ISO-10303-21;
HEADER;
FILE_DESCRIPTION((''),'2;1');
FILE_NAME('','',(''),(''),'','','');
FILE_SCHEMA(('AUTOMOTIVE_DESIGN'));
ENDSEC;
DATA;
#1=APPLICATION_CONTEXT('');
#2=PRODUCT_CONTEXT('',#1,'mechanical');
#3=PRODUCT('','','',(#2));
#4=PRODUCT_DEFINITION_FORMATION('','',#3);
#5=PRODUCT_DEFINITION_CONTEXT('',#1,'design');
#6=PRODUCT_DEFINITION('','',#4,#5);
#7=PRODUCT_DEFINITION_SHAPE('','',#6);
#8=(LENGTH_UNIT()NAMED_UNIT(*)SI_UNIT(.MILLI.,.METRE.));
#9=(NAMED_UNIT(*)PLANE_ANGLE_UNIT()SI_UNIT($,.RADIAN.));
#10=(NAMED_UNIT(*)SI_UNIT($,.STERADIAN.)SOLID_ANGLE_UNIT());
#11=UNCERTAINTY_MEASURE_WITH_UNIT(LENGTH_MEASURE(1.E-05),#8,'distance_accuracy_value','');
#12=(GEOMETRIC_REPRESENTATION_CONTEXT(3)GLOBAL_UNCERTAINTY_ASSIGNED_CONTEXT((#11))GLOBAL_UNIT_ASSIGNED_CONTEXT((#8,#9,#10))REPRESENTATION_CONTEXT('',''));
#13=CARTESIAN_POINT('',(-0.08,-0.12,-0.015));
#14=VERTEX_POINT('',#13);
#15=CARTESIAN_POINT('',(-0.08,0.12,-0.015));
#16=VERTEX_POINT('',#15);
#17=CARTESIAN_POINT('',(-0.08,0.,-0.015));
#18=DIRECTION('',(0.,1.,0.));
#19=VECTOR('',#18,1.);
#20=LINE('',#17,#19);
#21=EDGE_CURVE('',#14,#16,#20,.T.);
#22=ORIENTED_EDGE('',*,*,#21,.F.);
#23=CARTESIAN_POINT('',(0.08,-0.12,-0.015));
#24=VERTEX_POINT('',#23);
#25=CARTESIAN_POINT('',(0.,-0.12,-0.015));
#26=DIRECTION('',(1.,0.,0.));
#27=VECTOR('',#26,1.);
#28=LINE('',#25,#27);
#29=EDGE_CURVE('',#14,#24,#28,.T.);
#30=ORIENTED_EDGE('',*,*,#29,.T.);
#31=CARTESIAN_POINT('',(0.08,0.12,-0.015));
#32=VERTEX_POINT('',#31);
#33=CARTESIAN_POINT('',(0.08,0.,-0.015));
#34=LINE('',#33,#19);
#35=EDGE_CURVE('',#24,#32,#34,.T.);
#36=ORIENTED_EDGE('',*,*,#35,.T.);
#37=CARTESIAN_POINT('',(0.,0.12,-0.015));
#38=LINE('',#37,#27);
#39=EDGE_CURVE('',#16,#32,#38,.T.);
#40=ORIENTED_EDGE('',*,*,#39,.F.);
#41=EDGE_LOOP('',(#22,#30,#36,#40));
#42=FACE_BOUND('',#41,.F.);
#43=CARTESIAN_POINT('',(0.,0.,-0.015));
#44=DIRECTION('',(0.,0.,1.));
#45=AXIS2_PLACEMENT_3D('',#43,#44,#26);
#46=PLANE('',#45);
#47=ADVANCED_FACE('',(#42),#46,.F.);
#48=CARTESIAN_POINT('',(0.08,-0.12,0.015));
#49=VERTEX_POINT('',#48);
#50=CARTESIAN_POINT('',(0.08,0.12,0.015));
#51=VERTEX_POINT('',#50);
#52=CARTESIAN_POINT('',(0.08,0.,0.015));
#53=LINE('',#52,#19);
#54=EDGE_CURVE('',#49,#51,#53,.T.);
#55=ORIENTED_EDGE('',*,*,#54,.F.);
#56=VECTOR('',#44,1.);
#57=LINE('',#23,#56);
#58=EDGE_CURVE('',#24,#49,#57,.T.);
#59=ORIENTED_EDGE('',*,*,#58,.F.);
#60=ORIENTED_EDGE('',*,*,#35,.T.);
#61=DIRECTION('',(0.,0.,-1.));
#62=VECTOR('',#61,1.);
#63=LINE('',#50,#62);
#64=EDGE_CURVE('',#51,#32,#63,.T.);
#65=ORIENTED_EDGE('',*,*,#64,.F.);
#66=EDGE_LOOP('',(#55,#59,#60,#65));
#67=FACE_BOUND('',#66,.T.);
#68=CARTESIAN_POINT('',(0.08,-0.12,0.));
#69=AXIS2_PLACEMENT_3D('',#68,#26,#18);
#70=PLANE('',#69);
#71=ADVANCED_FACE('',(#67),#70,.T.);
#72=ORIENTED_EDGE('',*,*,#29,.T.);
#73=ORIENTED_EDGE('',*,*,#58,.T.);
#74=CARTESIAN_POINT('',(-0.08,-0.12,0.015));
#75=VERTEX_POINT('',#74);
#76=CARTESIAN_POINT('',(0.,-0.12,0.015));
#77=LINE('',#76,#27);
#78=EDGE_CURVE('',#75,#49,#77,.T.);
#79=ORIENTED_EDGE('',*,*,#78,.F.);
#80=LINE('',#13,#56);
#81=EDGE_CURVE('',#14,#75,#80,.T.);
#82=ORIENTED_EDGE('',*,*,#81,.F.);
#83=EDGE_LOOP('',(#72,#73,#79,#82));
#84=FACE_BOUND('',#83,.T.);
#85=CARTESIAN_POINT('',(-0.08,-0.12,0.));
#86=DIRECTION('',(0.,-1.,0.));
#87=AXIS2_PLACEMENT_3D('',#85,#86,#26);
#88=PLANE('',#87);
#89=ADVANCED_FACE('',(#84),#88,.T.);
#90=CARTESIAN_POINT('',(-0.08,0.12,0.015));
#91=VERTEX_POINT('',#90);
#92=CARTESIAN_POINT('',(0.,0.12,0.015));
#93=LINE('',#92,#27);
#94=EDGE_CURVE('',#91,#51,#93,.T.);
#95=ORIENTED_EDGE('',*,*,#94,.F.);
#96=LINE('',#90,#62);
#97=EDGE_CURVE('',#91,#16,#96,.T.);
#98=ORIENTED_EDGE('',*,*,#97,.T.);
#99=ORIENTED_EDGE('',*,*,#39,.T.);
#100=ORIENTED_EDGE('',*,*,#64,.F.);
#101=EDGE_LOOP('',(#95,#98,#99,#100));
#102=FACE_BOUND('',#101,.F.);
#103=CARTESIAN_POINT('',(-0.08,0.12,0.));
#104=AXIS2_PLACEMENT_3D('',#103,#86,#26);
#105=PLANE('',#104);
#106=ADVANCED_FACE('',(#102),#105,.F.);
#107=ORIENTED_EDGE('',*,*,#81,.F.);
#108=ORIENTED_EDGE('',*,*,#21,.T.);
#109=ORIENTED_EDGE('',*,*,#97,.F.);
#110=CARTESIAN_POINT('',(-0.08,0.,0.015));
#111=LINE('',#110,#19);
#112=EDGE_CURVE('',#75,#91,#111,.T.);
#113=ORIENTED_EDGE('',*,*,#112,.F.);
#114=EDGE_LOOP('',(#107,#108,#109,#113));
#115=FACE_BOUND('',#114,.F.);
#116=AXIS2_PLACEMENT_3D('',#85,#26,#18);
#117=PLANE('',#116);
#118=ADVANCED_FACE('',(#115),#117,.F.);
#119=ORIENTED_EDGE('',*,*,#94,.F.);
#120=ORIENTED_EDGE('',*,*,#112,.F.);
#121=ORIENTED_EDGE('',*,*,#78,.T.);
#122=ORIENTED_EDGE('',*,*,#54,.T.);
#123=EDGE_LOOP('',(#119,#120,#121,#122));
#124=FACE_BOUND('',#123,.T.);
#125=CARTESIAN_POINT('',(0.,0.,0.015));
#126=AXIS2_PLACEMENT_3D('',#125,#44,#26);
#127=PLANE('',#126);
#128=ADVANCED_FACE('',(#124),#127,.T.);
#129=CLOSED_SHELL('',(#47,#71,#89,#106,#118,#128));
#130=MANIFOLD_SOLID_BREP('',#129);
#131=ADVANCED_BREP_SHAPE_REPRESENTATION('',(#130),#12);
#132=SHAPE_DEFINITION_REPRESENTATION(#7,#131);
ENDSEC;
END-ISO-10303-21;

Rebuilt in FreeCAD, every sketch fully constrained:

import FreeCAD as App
import Part
import Sketcher

V = App.Vector
Q = App.Units.Quantity

doc = App.newDocument("Part")
body = doc.addObject("PartDesign::Body", "Body")

# Sketch on XY plane
sketch1 = doc.addObject("Sketcher::SketchObject", "Sketch")
body.addObject(sketch1)
sketch1.AttachmentSupport = (doc.XY_Plane, [""])
sketch1.MapMode = "FlatFace"
sketch1.addGeometry(Part.LineSegment(V(-0.08, 0.12, 0), V(-0.08, -0.12, 0)), False)
sketch1.addGeometry(Part.LineSegment(V(-0.08, -0.12, 0), V(0.08, -0.12, 0)), False)
sketch1.addGeometry(Part.LineSegment(V(0.08, -0.12, 0), V(0.08, 0.12, 0)), False)
sketch1.addGeometry(Part.LineSegment(V(0.08, 0.12, 0), V(-0.08, 0.12, 0)), False)
sketch1.addConstraint(Sketcher.Constraint("Coincident", 0, 2, 1, 1))
sketch1.addConstraint(Sketcher.Constraint("Coincident", 1, 2, 2, 1))
sketch1.addConstraint(Sketcher.Constraint("Coincident", 2, 2, 3, 1))
sketch1.addConstraint(Sketcher.Constraint("Coincident", 3, 2, 0, 1))
sketch1.addConstraint(Sketcher.Constraint("Vertical", 0))
sketch1.addConstraint(Sketcher.Constraint("Horizontal", 1))
sketch1.addConstraint(Sketcher.Constraint("Vertical", 2))
sketch1.addConstraint(Sketcher.Constraint("Horizontal", 3))
sketch1.addConstraint(Sketcher.Constraint("Symmetric", 0, 2, 2, 2, -1, 1))
sketch1.addConstraint(Sketcher.Constraint("DistanceX", 1, 1, 1, 2, Q("0.16 mm")))
sketch1.addConstraint(Sketcher.Constraint("DistanceY", 0, 2, 0, 1, Q("0.24 mm")))
pad1 = doc.addObject("PartDesign::Pad", "Pad")
body.addObject(pad1)
pad1.Profile = sketch1
pad1.Length = 0.03
pad1.Midplane = True

doc.recompute()
